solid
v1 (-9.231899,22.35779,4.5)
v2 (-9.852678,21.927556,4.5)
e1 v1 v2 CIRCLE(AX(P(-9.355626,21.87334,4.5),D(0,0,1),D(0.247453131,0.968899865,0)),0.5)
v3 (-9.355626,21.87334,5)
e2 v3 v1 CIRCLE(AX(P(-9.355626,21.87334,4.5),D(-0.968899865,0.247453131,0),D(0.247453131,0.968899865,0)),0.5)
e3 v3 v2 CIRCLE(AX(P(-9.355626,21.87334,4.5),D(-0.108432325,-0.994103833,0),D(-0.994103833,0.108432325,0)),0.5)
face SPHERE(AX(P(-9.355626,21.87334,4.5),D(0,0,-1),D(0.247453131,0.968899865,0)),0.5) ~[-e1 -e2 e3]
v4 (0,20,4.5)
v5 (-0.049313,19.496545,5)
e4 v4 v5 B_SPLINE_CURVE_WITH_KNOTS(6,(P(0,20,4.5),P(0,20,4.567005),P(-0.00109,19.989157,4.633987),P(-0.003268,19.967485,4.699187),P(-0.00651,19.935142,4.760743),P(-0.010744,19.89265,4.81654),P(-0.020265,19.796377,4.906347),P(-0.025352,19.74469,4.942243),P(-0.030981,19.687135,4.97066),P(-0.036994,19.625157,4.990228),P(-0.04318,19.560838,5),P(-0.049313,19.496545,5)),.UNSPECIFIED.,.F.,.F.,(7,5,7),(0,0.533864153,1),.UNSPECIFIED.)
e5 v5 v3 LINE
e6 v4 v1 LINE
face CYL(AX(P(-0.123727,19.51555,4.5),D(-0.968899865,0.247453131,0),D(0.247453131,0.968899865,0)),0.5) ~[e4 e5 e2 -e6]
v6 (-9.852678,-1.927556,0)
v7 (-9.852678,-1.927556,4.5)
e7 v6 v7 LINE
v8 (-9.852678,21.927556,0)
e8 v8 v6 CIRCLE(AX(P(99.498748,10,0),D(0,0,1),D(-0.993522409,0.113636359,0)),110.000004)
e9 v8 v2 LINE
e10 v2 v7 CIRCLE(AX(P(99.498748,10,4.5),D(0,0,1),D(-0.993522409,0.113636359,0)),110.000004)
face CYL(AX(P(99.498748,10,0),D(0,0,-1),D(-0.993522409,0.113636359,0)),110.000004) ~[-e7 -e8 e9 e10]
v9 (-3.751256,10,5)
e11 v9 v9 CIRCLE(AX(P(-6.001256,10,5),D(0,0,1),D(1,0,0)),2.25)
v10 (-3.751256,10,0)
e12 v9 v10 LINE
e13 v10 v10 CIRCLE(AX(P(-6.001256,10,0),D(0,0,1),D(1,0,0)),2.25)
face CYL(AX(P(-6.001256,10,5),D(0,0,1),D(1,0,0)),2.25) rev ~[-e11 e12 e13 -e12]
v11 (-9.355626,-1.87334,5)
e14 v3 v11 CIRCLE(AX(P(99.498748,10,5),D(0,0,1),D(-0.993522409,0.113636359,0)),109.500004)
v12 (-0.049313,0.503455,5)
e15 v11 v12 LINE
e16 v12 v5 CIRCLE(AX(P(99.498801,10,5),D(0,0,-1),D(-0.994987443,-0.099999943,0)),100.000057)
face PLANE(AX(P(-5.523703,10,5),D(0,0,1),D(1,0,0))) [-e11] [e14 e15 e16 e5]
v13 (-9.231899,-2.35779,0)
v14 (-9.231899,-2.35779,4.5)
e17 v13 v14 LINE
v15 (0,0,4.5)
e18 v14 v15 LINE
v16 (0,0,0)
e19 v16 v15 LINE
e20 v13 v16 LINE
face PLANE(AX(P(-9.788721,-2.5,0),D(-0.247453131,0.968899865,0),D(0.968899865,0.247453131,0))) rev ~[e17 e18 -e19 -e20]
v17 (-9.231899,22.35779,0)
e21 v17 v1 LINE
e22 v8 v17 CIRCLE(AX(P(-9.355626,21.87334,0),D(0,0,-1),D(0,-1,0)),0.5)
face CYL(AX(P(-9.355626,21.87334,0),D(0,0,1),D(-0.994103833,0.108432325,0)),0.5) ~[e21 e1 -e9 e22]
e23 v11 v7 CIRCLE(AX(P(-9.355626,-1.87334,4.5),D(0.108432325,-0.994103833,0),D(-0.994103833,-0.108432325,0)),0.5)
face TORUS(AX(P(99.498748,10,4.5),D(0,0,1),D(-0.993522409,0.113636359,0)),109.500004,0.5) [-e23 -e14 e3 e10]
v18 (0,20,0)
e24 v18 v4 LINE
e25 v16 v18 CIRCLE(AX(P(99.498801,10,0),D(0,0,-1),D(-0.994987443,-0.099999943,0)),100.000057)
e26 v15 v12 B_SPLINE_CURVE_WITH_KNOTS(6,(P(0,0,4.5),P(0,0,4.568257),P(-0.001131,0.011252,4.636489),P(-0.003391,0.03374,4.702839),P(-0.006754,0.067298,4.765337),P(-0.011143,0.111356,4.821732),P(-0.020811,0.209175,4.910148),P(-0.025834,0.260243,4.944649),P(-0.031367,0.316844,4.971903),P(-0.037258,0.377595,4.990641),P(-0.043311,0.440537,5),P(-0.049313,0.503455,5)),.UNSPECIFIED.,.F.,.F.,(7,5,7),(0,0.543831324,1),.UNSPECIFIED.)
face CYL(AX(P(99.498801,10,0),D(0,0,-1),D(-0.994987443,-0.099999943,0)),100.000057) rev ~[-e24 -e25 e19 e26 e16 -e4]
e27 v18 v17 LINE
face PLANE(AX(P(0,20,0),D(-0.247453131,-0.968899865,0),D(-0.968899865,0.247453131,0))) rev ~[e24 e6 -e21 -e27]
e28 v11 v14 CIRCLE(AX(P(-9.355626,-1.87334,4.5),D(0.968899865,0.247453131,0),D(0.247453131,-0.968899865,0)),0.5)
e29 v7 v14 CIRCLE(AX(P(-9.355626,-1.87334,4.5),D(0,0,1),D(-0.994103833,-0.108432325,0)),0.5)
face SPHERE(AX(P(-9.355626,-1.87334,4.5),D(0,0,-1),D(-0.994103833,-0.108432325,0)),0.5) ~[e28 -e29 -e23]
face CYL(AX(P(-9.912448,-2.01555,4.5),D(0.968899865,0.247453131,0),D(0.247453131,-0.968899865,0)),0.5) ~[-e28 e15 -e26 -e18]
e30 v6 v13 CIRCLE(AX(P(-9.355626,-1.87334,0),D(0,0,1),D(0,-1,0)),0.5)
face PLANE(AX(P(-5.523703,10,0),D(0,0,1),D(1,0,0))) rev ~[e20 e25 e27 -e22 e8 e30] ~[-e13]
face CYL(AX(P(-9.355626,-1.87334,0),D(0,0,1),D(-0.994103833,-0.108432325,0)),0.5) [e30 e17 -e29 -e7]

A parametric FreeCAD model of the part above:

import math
import FreeCAD as App
import Part
import Sketcher
from FreeCAD import Vector
Q = App.Units.Quantity


def edges_at(feature, points):
    """Names of the edges that pass closest to the given points."""
    edges = feature.Shape.Edges
    near = lambda p: min(range(len(edges)), key=lambda i: edges[i].distToShape(Part.Vertex(*p))[0])
    return sorted({f"Edge{near(p) + 1}" for p in points})

doc = App.newDocument("Part")
body = doc.addObject("PartDesign::Body", "Body")

# Sketch on XY plane
sketch1 = body.newObject("Sketcher::SketchObject", "Sketch")
sketch1.AttachmentSupport = (doc.getObject("XY_Plane"), [""])
sketch1.MapMode = "FlatFace"
sketch1.addGeometry([
    Part.ArcOfCircle(Part.Circle(Vector(99, 10, 0), Vector(0, 0, 1), 110), math.radians(173.48), math.radians(186.52)),
    Part.LineSegment(Vector(-10, -2, 0), Vector(0, 0, 0)),
    Part.ArcOfCircle(Part.Circle(Vector(99, 10, 0), Vector(0, 0, 1), 100), math.radians(174.26), math.radians(185.74)),
    Part.LineSegment(Vector(0, 20, 0), Vector(-10, 22, 0)),
], False)
sketch1.addConstraint([
    Sketcher.Constraint("Coincident", 0, 2, 1, 1),
    Sketcher.Constraint("Coincident", 1, 2, 2, 2),
    Sketcher.Constraint("Coincident", 2, 1, 3, 1),
    Sketcher.Constraint("Coincident", 3, 2, 0, 1),
    Sketcher.Constraint("Coincident", 1, 2, -1, 1),
    Sketcher.Constraint("PointOnObject", 2, 1, -2),
    Sketcher.Constraint("Horizontal", 0, 3, 2, 3),
    Sketcher.Constraint("Vertical", 0, 2, 3, 2),
    Sketcher.Constraint("DistanceY", -1, 1, 0, 3, Q("10 mm")),
    Sketcher.Constraint("DistanceY", 0, 2, 3, 2, Q("25 mm")),
    Sketcher.Constraint("Radius", 0, Q("110.000004 mm")),
    Sketcher.Constraint("Radius", 2, Q("100.000057 mm")),
    Sketcher.Constraint("DistanceX", -1, 1, 0, 3, Q("99.498748 mm")),
])
pad1 = body.newObject("PartDesign::Pad", "Pad")
pad1.Profile = sketch1
pad1.Length = 5

# Sketch on XY plane
sketch2 = body.newObject("Sketcher::SketchObject", "Sketch001")
sketch2.AttachmentSupport = (doc.getObject("XY_Plane"), [""])
sketch2.MapMode = "FlatFace"
sketch2.AttachmentOffset = App.Placement(Vector(0, 0, 5), App.Rotation())
sketch2.addGeometry(Part.Circle(Vector(-6, 10, 0), Vector(0, 0, 1), 2.2), False)
sketch2.addConstraint([
    Sketcher.Constraint("Diameter", 0, Q("4.5 mm")),
    Sketcher.Constraint("DistanceY", -1, 1, 0, 3, Q("10 mm")),
    Sketcher.Constraint("DistanceX", 0, 3, -1, 1, Q("6.001256 mm")),
])
pocket1 = body.newObject("PartDesign::Pocket", "Pocket")
pocket1.Profile = sketch2
pocket1.Length = 25
doc.recompute()

fillet = body.newObject("PartDesign::Fillet", "Fillet")
fillet.Base = (pocket1, edges_at(pocket1, [
    (-4.894, -1.25, 5),
    (-9.789, -2.5, 2.5),
    (-10.501, 10, 5),
    (-9.789, 22.5, 2.5),
    (-4.894, 21.25, 5),
]))
fillet.Radius = 0.5

doc.recompute()
